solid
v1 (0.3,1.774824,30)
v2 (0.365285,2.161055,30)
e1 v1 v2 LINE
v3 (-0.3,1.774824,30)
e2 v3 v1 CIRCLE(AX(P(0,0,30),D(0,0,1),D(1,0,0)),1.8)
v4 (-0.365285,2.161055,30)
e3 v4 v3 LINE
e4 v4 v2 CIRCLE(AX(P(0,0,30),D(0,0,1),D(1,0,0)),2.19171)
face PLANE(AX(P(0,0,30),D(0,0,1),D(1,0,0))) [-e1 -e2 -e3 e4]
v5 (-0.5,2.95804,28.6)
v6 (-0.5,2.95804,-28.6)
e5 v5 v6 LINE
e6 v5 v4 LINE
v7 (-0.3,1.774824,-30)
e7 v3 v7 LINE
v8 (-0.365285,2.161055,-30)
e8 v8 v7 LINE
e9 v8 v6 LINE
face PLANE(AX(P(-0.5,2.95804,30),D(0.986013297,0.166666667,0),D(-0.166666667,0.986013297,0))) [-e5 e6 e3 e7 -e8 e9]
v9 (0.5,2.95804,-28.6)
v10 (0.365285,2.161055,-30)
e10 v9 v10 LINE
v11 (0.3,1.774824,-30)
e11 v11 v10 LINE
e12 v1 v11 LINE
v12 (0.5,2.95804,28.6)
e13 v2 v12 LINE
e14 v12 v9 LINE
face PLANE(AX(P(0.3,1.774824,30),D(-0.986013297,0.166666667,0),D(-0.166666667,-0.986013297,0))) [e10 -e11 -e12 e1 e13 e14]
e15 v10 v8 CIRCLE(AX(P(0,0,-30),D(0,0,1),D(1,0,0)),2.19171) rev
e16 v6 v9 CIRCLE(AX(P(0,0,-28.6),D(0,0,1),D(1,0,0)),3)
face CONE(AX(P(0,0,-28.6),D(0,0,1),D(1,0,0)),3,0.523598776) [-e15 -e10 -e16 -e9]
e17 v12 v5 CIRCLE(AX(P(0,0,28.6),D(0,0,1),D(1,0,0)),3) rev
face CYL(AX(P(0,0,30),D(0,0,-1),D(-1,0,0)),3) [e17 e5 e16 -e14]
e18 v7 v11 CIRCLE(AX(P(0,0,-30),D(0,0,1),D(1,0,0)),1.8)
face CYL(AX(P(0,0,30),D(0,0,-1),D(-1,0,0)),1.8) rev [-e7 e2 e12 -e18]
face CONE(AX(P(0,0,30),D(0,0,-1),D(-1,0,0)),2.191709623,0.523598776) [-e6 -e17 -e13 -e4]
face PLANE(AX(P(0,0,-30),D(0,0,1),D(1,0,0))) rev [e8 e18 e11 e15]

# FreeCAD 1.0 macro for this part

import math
import FreeCAD as App
import Part
import Sketcher
from FreeCAD import Vector


def edges_at(feature, points):
    """Names of the edges that pass closest to the given points."""
    edges = feature.Shape.Edges
    near = lambda p: min(range(len(edges)), key=lambda i: edges[i].distToShape(Part.Vertex(*p))[0])
    return sorted({f"Edge{near(p) + 1}" for p in points})

doc = App.newDocument("Part")
body = doc.addObject("PartDesign::Body", "Body")

sketch1 = body.newObject("Sketcher::SketchObject", "Sketch")
sketch1.AttachmentSupport = (doc.getObject("XY_Plane"), [""])
sketch1.MapMode = "FlatFace"
sketch1.addGeometry([
    Part.ArcOfCircle(Part.Circle(Vector(0, 0, 0), Vector(0, 0, 1), 3), math.radians(99.594068), math.radians(440.405932)),
    Part.LineSegment(Vector(0.5, 2.95804, 0), Vector(0.3, 1.774824, 0)),
    Part.ArcOfCircle(Part.Circle(Vector(0, 0, 0), Vector(0, 0, 1), 1.8), math.radians(99.594068), math.radians(440.405932)),
    Part.LineSegment(Vector(-0.3, 1.774824, 0), Vector(-0.5, 2.95804, 0)),
], False)
sketch1.addConstraint([
    Sketcher.Constraint("Coincident", 0, 2, 1, 1),
    Sketcher.Constraint("Coincident", 1, 2, 2, 2),
    Sketcher.Constraint("Coincident", 2, 1, 3, 1),
    Sketcher.Constraint("Coincident", 3, 2, 0, 1),
    Sketcher.Constraint("Coincident", 0, 3, -1, 1),
    Sketcher.Constraint("Coincident", 2, 3, -1, 1),
    Sketcher.Constraint("Horizontal", 1, 2, 2, 1),
    Sketcher.Constraint("Horizontal", 0, 2, 3, 2),
    Sketcher.Constraint("Radius", 0, 3.0),
    Sketcher.Constraint("Radius", 2, 1.8),
    Sketcher.Constraint("DistanceX", 3, 2, 0, 2, 1.0),
    Sketcher.Constraint("DistanceX", -1, 1, 1, 2, 0.3),
])
pad1 = body.newObject("PartDesign::Pad", "Pad")
pad1.Profile = sketch1
pad1.Length = 60
pad1.Midplane = True
doc.recompute()

chamfer = body.newObject("PartDesign::Chamfer", "Chamfer")
chamfer.Base = (pad1, edges_at(pad1, [(0, -3, 30), (0, -3, -30)]))
chamfer.ChamferType = "Two distances"
chamfer.Size = 1.4
chamfer.Size2 = 0.80829

doc.recompute()
